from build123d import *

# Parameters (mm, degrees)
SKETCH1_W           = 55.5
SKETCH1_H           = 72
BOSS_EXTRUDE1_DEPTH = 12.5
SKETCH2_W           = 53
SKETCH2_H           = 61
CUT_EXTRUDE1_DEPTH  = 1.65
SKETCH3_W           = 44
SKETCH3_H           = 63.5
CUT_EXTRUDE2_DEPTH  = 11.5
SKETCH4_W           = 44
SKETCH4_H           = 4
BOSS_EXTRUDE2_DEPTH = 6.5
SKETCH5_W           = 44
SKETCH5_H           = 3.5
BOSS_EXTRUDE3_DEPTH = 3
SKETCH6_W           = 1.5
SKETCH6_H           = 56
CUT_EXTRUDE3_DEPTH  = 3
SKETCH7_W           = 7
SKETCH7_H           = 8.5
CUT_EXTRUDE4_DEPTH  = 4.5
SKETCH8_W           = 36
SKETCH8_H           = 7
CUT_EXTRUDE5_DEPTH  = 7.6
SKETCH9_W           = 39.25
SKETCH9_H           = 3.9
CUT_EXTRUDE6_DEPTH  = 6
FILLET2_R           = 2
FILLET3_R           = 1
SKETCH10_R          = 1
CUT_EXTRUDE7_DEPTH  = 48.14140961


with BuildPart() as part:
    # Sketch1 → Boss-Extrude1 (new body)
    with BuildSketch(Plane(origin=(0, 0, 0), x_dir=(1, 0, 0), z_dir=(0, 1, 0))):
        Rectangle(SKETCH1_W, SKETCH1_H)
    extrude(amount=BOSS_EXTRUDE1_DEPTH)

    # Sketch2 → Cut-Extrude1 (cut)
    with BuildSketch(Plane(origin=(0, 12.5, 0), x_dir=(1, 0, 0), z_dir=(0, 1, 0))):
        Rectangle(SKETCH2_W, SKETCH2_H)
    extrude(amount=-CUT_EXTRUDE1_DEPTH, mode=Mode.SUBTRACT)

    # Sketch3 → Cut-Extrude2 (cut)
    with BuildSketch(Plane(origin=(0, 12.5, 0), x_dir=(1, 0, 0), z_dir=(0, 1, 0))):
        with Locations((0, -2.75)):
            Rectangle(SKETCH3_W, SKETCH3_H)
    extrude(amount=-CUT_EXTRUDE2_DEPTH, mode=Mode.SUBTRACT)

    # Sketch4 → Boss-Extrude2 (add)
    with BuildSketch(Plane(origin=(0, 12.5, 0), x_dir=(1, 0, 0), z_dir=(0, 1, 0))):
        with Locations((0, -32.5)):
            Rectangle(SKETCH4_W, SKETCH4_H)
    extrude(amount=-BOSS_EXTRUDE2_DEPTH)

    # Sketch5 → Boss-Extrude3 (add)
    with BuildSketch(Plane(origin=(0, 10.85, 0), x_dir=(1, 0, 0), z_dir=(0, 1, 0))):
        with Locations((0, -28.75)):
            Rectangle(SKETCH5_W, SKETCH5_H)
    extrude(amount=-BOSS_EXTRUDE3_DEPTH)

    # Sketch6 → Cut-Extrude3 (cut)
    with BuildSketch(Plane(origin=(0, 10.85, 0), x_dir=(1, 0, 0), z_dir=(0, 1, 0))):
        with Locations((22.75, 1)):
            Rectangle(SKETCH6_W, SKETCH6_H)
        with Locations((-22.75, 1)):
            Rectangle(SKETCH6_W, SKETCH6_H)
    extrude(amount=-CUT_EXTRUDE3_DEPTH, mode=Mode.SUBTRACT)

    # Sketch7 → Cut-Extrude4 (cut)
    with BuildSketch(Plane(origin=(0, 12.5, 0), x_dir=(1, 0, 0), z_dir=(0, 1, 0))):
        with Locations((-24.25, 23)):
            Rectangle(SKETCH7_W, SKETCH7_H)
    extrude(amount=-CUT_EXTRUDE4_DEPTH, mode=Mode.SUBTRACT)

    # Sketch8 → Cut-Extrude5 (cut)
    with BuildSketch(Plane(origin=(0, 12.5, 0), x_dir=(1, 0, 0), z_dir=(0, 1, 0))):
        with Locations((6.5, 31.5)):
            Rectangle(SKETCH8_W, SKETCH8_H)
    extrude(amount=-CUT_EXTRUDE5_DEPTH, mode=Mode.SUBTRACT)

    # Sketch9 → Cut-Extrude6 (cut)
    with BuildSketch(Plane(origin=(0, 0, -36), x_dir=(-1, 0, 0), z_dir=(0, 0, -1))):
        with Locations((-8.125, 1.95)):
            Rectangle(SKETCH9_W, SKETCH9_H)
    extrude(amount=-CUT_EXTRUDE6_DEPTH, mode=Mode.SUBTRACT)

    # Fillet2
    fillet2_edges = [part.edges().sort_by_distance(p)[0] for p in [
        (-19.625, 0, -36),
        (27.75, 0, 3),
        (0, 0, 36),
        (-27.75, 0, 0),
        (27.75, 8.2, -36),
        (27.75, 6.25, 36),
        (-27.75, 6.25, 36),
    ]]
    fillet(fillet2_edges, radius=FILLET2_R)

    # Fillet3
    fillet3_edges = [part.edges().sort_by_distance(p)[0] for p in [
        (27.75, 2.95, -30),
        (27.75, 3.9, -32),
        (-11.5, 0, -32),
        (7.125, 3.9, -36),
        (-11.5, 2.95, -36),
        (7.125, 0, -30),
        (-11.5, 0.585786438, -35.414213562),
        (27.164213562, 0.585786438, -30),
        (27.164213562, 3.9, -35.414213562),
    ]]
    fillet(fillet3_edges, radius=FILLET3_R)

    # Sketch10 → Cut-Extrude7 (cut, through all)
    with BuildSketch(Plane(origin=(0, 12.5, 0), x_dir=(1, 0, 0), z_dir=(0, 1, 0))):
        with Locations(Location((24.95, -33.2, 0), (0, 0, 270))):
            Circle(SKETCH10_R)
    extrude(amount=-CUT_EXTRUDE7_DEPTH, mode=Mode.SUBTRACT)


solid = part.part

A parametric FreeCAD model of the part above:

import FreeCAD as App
import Part
import Sketcher

V = App.Vector


def edges_at(feature, points):
    """Names of the edges that pass closest to the given points."""
    edges = feature.Shape.Edges
    near = lambda p: min(range(len(edges)), key=lambda i: edges[i].distToShape(Part.Vertex(*p))[0])
    return sorted({f"Edge{near(p) + 1}" for p in points})


def add_polygon(sketch, points):
    """Adds a closed chain of lines whose ends are joined by coincident constraints."""
    first, n = sketch.GeometryCount, len(points)
    for a, b in zip(points, points[1:] + points[:1]):
        sketch.addGeometry(Part.LineSegment(App.Vector(*a, 0), App.Vector(*b, 0)), False)
    for i in range(n):
        sketch.addConstraint(Sketcher.Constraint("Coincident", first + i, 2, first + (i + 1) % n, 1))

doc = App.newDocument("Part")
params = doc.addObject("Spreadsheet::Sheet", "Params")
for row, (alias, value) in enumerate([
    ("sketch1_height", "72 mm"),
    ("sketch1_width", "55.5 mm"),
    ("pad1_length", "12.5 mm"),
    ("sketch2_width", "53 mm"),
    ("sketch2_height", "61 mm"),
    ("pocket1_length", "1.65 mm"),
    ("sketch3_width", "44 mm"),
    ("sketch3_height", "63.5 mm"),
    ("pocket2_length", "11.5 mm"),
    ("sketch4_width", "44 mm"),
    ("sketch4_height", "4 mm"),
    ("pad2_length", "6.5 mm"),
    ("sketch5_width", "44 mm"),
    ("sketch5_height", "3.5 mm"),
    ("pad3_length", "3 mm"),
    ("sketch6_height", "56 mm"),
    ("sketch6_width", "1.5 mm"),
    ("pocket3_length", "3 mm"),
    ("sketch7_width", "7 mm"),
    ("sketch7_height", "8.5 mm"),
    ("pocket4_length", "4.5 mm"),
    ("sketch8_width", "36 mm"),
    ("sketch8_height", "7 mm"),
    ("pocket5_length", "7.6 mm"),
    ("sketch9_height", "3.9 mm"),
    ("sketch9_width", "39.25 mm"),
    ("pocket6_length", "6 mm"),
    ("fillet_radius", "2 mm"),
    ("fillet2_radius", "1 mm"),
    ("sketch10_diameter", "2 mm"),
], start=1):
    params.set(f"A{row}", alias)
    params.set(f"B{row}", "=" + value)
    params.setAlias(f"B{row}", alias)

body = doc.addObject("PartDesign::Body", "Body")

sketch1 = body.newObject("Sketcher::SketchObject", "Sketch")
sketch1.AttachmentSupport = (doc.getObject("XZ_Plane"), [""])
sketch1.MapMode = "FlatFace"
add_polygon(sketch1, [(-27.75, -36), (-27.75, 36), (27.75, 36), (27.75, -36)])
sketch1.addConstraint([
    Sketcher.Constraint("Vertical", 0),
    Sketcher.Constraint("Horizontal", 1),
    Sketcher.Constraint("Vertical", 2),
    Sketcher.Constraint("Horizontal", 3),
    Sketcher.Constraint("Symmetric", 0, 2, 2, 2, -1, 1),
    Sketcher.Constraint("DistanceY", 0, 1, 0, 2, 72.0),
    Sketcher.Constraint("DistanceX", 1, 1, 1, 2, 55.5),
])
sketch1.setExpression("Constraints[9]", "Params.sketch1_height")
sketch1.setExpression("Constraints[10]", "Params.sketch1_width")
pad1 = body.newObject("PartDesign::Pad", "Pad")
pad1.Profile = sketch1
pad1.setExpression("Length", "Params.pad1_length")
pad1.Reversed = True

sketch2 = body.newObject("Sketcher::SketchObject", "Sketch001")
sketch2.AttachmentSupport = (doc.getObject("XZ_Plane"), [""])
sketch2.MapMode = "FlatFace"
sketch2.AttachmentOffset = App.Placement(V(0, 0, -12.5), App.Rotation())
add_polygon(sketch2, [(-26.5, -30.5), (-26.5, 30.5), (26.5, 30.5), (26.5, -30.5)])
sketch2.addConstraint([
    Sketcher.Constraint("Vertical", 0),
    Sketcher.Constraint("Horizontal", 1),
    Sketcher.Constraint("Vertical", 2),
    Sketcher.Constraint("Horizontal", 3),
    Sketcher.Constraint("Symmetric", 0, 2, 2, 2, -1, 1),
    Sketcher.Constraint("DistanceX", 1, 1, 1, 2, 53.0),
    Sketcher.Constraint("DistanceY", 0, 1, 0, 2, 61.0),
])
sketch2.setExpression("Constraints[9]", "Params.sketch2_width")
sketch2.setExpression("Constraints[10]", "Params.sketch2_height")
pocket1 = body.newObject("PartDesign::Pocket", "Pocket")
pocket1.Profile = sketch2
pocket1.setExpression("Length", "Params.pocket1_length")
pocket1.Reversed = True

sketch3 = body.newObject("Sketcher::SketchObject", "Sketch002")
sketch3.AttachmentSupport = (doc.getObject("XZ_Plane"), [""])
sketch3.MapMode = "FlatFace"
sketch3.AttachmentOffset = App.Placement(V(0, 0, -12.5), App.Rotation())
add_polygon(sketch3, [(-22, -29), (-22, 34.5), (22, 34.5), (22, -29)])
sketch3.addConstraint([
    Sketcher.Constraint("Vertical", 0),
    Sketcher.Constraint("Horizontal", 1),
    Sketcher.Constraint("Vertical", 2),
    Sketcher.Constraint("Horizontal", 3),
    Sketcher.Constraint("DistanceX", 1, 1, 1, 2, 44.0),
    Sketcher.Constraint("DistanceY", 0, 1, 0, 2, 63.5),
    Sketcher.Constraint("DistanceX", 0, 2, -1, 1, 22.0),
    Sketcher.Constraint("DistanceY", 2, 2, -1, 1, 29.0),
])
sketch3.setExpression("Constraints[8]", "Params.sketch3_width")
sketch3.setExpression("Constraints[9]", "Params.sketch3_height")
pocket2 = body.newObject("PartDesign::Pocket", "Pocket001")
pocket2.Profile = sketch3
pocket2.setExpression("Length", "Params.pocket2_length")
pocket2.Reversed = True

sketch4 = body.newObject("Sketcher::SketchObject", "Sketch003")
sketch4.AttachmentSupport = (doc.getObject("XZ_Plane"), [""])
sketch4.MapMode = "FlatFace"
sketch4.AttachmentOffset = App.Placement(V(0, 0, -12.5), App.Rotation())
add_polygon(sketch4, [(-22, 30.5), (-22, 34.5), (22, 34.5), (22, 30.5)])
sketch4.addConstraint([
    Sketcher.Constraint("Vertical", 0),
    Sketcher.Constraint("Horizontal", 1),
    Sketcher.Constraint("Vertical", 2),
    Sketcher.Constraint("Horizontal", 3),
    Sketcher.Constraint("DistanceX", 1, 1, 1, 2, 44.0),
    Sketcher.Constraint("DistanceY", 0, 1, 0, 2, 4.0),
    Sketcher.Constraint("DistanceX", 0, 2, -1, 1, 22.0),
    Sketcher.Constraint("DistanceY", -1, 1, 0, 2, 34.5),
])
sketch4.setExpression("Constraints[8]", "Params.sketch4_width")
sketch4.setExpression("Constraints[9]", "Params.sketch4_height")
pad2 = body.newObject("PartDesign::Pad", "Pad001")
pad2.Profile = sketch4
pad2.setExpression("Length", "Params.pad2_length")

sketch5 = body.newObject("Sketcher::SketchObject", "Sketch004")
sketch5.AttachmentSupport = (doc.getObject("XZ_Plane"), [""])
sketch5.MapMode = "FlatFace"
sketch5.AttachmentOffset = App.Placement(V(0, 0, -10.85), App.Rotation())
add_polygon(sketch5, [(-22, 27), (-22, 30.5), (22, 30.5), (22, 27)])
sketch5.addConstraint([
    Sketcher.Constraint("Vertical", 0),
    Sketcher.Constraint("Horizontal", 1),
    Sketcher.Constraint("Vertical", 2),
    Sketcher.Constraint("Horizontal", 3),
    Sketcher.Constraint("DistanceX", 1, 1, 1, 2, 44.0),
    Sketcher.Constraint("DistanceY", 0, 1, 0, 2, 3.5),
    Sketcher.Constraint("DistanceX", 0, 2, -1, 1, 22.0),
    Sketcher.Constraint("DistanceY", -1, 1, 2, 2, 27.0),
])
sketch5.setExpression("Constraints[8]", "Params.sketch5_width")
sketch5.setExpression("Constraints[9]", "Params.sketch5_height")
pad3 = body.newObject("PartDesign::Pad", "Pad002")
pad3.Profile = sketch5
pad3.setExpression("Length", "Params.pad3_length")

sketch6 = body.newObject("Sketcher::SketchObject", "Sketch005")
sketch6.AttachmentSupport = (doc.getObject("XZ_Plane"), [""])
sketch6.MapMode = "FlatFace"
sketch6.AttachmentOffset = App.Placement(V(0, 0, -10.85), App.Rotation())
add_polygon(sketch6, [(22, -29), (22, 27), (23.5, 27), (23.5, -29)])
add_polygon(sketch6, [(-23.5, -29), (-23.5, 27), (-22, 27), (-22, -29)])
sketch6.addConstraint([
    Sketcher.Constraint("Vertical", 0),
    Sketcher.Constraint("Horizontal", 1),
    Sketcher.Constraint("Vertical", 2),
    Sketcher.Constraint("Horizontal", 3),
    Sketcher.Constraint("Vertical", 4),
    Sketcher.Constraint("Horizontal", 5),
    Sketcher.Constraint("Vertical", 6),
    Sketcher.Constraint("Horizontal", 7),
    Sketcher.Constraint("Symmetric", 1, 2, 4, 2, -2),
    Sketcher.Constraint("Symmetric", 3, 2, 6, 2, -2),
    Sketcher.Constraint("DistanceY", 0, 1, 0, 2, 56.0),
    Sketcher.Constraint("DistanceX", 1, 1, 1, 2, 1.5),
    Sketcher.Constraint("DistanceX", -1, 1, 0, 2, 22.0),
    Sketcher.Constraint("DistanceY", -1, 1, 0, 2, 27.0),
])
sketch6.setExpression("Constraints[18]", "Params.sketch6_height")
sketch6.setExpression("Constraints[19]", "Params.sketch6_width")
pocket3 = body.newObject("PartDesign::Pocket", "Pocket002")
pocket3.Profile = sketch6
pocket3.setExpression("Length", "Params.pocket3_length")
pocket3.Reversed = True

sketch7 = body.newObject("Sketcher::SketchObject", "Sketch006")
sketch7.AttachmentSupport = (doc.getObject("XZ_Plane"), [""])
sketch7.MapMode = "FlatFace"
sketch7.AttachmentOffset = App.Placement(V(0, 0, -12.5), App.Rotation())
add_polygon(sketch7, [(-27.75, -27.25), (-27.75, -18.75), (-20.75, -18.75), (-20.75, -27.25)])
sketch7.addConstraint([
    Sketcher.Constraint("Vertical", 0),
    Sketcher.Constraint("Horizontal", 1),
    Sketcher.Constraint("Vertical", 2),
    Sketcher.Constraint("Horizontal", 3),
    Sketcher.Constraint("DistanceX", 1, 1, 1, 2, 7.0),
    Sketcher.Constraint("DistanceY", 0, 1, 0, 2, 8.5),
    Sketcher.Constraint("DistanceX", 0, 2, -1, 1, 27.75),
    Sketcher.Constraint("DistanceY", 0, 2, -1, 1, 18.75),
])
sketch7.setExpression("Constraints[8]", "Params.sketch7_width")
sketch7.setExpression("Constraints[9]", "Params.sketch7_height")
pocket4 = body.newObject("PartDesign::Pocket", "Pocket003")
pocket4.Profile = sketch7
pocket4.setExpression("Length", "Params.pocket4_length")
pocket4.Reversed = True

sketch8 = body.newObject("Sketcher::SketchObject", "Sketch007")
sketch8.AttachmentSupport = (doc.getObject("XZ_Plane"), [""])
sketch8.MapMode = "FlatFace"
sketch8.AttachmentOffset = App.Placement(V(0, 0, -12.5), App.Rotation())
add_polygon(sketch8, [(-11.5, -35), (-11.5, -28), (24.5, -28), (24.5, -35)])
sketch8.addConstraint([
    Sketcher.Constraint("Vertical", 0),
    Sketcher.Constraint("Horizontal", 1),
    Sketcher.Constraint("Vertical", 2),
    Sketcher.Constraint("Horizontal", 3),
    Sketcher.Constraint("DistanceX", 1, 1, 1, 2, 36.0),
    Sketcher.Constraint("DistanceY", 0, 1, 0, 2, 7.0),
    Sketcher.Constraint("DistanceY", 0, 2, -1, 1, 28.0),
    Sketcher.Constraint("DistanceX", 0, 2, -1, 1, 11.5),
])
sketch8.setExpression("Constraints[8]", "Params.sketch8_width")
sketch8.setExpression("Constraints[9]", "Params.sketch8_height")
pocket5 = body.newObject("PartDesign::Pocket", "Pocket004")
pocket5.Profile = sketch8
pocket5.setExpression("Length", "Params.pocket5_length")
pocket5.Reversed = True

sketch9 = body.newObject("Sketcher::SketchObject", "Sketch008")
sketch9.AttachmentSupport = (doc.getObject("XY_Plane"), [""])
sketch9.MapMode = "FlatFace"
sketch9.AttachmentOffset = App.Placement(V(0, 0, -36), App.Rotation())
add_polygon(sketch9, [(27.75, 3.9), (27.75, 0), (-11.5, 0), (-11.5, 3.9)])
sketch9.addConstraint([
    Sketcher.Constraint("Vertical", 0),
    Sketcher.Constraint("Horizontal", 1),
    Sketcher.Constraint("Vertical", 2),
    Sketcher.Constraint("Horizontal", 3),
    Sketcher.Constraint("PointOnObject", 0, 2, -1),
    Sketcher.Constraint("DistanceY", 0, 2, 0, 1, 3.9),
    Sketcher.Constraint("DistanceX", 1, 2, 1, 1, 39.25),
    Sketcher.Constraint("DistanceX", 1, 2, -1, 1, 11.5),
])
sketch9.setExpression("Constraints[9]", "Params.sketch9_height")
sketch9.setExpression("Constraints[10]", "Params.sketch9_width")
pocket6 = body.newObject("PartDesign::Pocket", "Pocket005")
pocket6.Profile = sketch9
pocket6.setExpression("Length", "Params.pocket6_length")
pocket6.Reversed = True
doc.recompute()

fillet = body.newObject("PartDesign::Fillet", "Fillet")
fillet.Base = (pocket6, edges_at(pocket6, [
    (-19.625, 0, -36),
    (27.75, 0, 3),
    (0, 0, 36),
    (-27.75, 0, 0),
    (27.75, 8.2, -36),
    (27.75, 6.25, 36),
    (-27.75, 6.25, 36),
]))
fillet.setExpression("Radius", "Params.fillet_radius")
doc.recompute()

fillet2 = body.newObject("PartDesign::Fillet", "Fillet001")
fillet2.Base = (fillet, edges_at(fillet, [
    (27.75, 2.95, -30),
    (27.75, 3.9, -32),
    (-11.5, 0, -32),
    (7.125, 3.9, -36),
    (-11.5, 2.95, -36),
    (7.125, 0, -30),
    (-11.5, 0.586, -35.414),
    (27.164, 0.586, -30),
    (27.164, 3.9, -35.414),
]))
fillet2.setExpression("Radius", "Params.fillet2_radius")

sketch10 = body.newObject("Sketcher::SketchObject", "Sketch009")
sketch10.AttachmentSupport = (doc.getObject("XZ_Plane"), [""])
sketch10.MapMode = "FlatFace"
sketch10.AttachmentOffset = App.Placement(V(0, 0, -12.5), App.Rotation())
sketch10.addGeometry(Part.Circle(V(24.95, 33.2, 0), V(0, 0, 1), 1), False)
sketch10.addConstraint([
    Sketcher.Constraint("Diameter", 0, 2.0),
    Sketcher.Constraint("DistanceY", -1, 1, 0, 3, 33.2),
    Sketcher.Constraint("DistanceX", -1, 1, 0, 3, 24.95),
])
sketch10.setExpression("Constraints[0]", "Params.sketch10_diameter")
pocket7 = body.newObject("PartDesign::Pocket", "Pocket006")
pocket7.Profile = sketch10
pocket7.Type = "ThroughAll"
pocket7.Reversed = True

doc.recompute()
